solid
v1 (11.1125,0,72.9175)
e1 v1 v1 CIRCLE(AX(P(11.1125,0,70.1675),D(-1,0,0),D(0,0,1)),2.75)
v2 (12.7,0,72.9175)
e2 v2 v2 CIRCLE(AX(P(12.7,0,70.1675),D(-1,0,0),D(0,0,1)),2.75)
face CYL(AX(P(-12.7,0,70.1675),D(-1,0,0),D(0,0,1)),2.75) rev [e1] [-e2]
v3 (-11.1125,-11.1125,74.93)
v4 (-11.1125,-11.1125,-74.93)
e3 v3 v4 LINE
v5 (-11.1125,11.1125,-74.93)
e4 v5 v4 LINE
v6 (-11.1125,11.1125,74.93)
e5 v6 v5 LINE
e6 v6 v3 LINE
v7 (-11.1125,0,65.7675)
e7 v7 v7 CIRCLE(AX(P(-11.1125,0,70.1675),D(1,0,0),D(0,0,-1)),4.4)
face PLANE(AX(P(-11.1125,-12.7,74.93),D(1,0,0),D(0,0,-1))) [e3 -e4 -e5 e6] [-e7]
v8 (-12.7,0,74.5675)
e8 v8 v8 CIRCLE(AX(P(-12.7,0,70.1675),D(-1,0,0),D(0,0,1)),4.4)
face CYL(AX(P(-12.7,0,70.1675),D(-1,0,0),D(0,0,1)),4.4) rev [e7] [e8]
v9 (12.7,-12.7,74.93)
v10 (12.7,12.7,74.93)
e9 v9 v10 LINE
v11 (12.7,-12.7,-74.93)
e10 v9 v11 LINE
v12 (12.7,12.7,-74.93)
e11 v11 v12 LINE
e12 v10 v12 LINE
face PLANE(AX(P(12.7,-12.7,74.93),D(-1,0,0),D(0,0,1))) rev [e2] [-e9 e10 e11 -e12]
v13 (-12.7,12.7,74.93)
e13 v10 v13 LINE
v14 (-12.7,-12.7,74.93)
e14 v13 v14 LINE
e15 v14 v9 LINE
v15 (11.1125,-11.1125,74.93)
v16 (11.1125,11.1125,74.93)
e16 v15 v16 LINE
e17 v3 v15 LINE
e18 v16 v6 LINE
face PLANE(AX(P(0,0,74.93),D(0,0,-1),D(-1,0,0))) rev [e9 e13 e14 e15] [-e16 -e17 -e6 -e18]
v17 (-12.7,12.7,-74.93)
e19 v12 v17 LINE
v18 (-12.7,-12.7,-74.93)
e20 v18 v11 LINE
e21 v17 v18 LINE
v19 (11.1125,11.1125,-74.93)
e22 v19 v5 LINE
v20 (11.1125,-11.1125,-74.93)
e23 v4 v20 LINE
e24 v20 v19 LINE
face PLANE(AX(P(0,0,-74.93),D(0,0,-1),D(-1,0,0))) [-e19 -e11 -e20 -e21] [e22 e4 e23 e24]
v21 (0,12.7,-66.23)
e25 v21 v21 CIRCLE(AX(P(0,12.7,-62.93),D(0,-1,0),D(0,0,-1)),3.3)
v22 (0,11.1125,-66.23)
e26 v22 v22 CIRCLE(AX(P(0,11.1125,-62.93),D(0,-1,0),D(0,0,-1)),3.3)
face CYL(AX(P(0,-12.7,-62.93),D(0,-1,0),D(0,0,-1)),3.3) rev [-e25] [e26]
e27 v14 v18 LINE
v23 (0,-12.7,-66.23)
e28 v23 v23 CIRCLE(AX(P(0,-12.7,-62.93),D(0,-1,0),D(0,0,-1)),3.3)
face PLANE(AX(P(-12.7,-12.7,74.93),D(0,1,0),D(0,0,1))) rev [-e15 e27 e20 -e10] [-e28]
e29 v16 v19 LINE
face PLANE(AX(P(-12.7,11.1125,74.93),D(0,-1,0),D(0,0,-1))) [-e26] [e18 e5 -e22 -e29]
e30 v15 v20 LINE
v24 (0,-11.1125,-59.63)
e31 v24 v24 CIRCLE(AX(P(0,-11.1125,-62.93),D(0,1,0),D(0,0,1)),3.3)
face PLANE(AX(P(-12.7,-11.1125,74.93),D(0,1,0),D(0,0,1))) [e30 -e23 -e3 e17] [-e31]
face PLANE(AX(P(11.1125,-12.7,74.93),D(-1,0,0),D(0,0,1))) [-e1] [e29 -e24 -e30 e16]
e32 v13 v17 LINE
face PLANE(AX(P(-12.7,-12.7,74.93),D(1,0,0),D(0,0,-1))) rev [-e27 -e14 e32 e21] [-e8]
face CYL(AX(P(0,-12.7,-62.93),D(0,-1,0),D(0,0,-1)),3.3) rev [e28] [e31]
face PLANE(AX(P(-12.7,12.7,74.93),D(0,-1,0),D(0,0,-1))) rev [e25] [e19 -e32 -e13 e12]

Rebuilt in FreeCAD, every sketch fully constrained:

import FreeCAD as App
import Part
import Sketcher

V = App.Vector
Q = App.Units.Quantity


def faces_at(feature, points):
    """Names of the faces that lie closest to the given points."""
    faces = feature.Shape.Faces
    near = lambda p: min(range(len(faces)), key=lambda i: faces[i].distToShape(Part.Vertex(*p))[0])
    return sorted({f"Face{near(p) + 1}" for p in points})


def add_polygon(sketch, points):
    """Adds a closed chain of lines whose ends are joined by coincident constraints."""
    first, n = sketch.GeometryCount, len(points)
    for a, b in zip(points, points[1:] + points[:1]):
        sketch.addGeometry(Part.LineSegment(App.Vector(*a, 0), App.Vector(*b, 0)), False)
    for i in range(n):
        sketch.addConstraint(Sketcher.Constraint("Coincident", first + i, 2, first + (i + 1) % n, 1))

doc = App.newDocument("Part")
body = doc.addObject("PartDesign::Body", "Body")

# Sketch on XY plane
sketch1 = doc.addObject("Sketcher::SketchObject", "Sketch")
body.addObject(sketch1)
sketch1.AttachmentSupport = (doc.XY_Plane, [""])
sketch1.MapMode = "FlatFace"
add_polygon(sketch1, [(-13, 13), (-13, -13), (13, -13), (13, 13)])  # lines 0-3
sketch1.addConstraint([
    Sketcher.Constraint("Vertical", 0),
    Sketcher.Constraint("Horizontal", 1),
    Sketcher.Constraint("Vertical", 2),
    Sketcher.Constraint("Horizontal", 3),
    Sketcher.Constraint("Symmetric", 0, 2, 2, 2, -1, 1),
    Sketcher.Constraint("Equal", 3, 0),
    Sketcher.Constraint("DistanceX", 1, 1, 1, 2, Q("1 in")),
])
pad1 = doc.addObject("PartDesign::Pad", "Pad")
body.addObject(pad1)
pad1.Profile = sketch1
pad1.Length = Q("5.9 in")
pad1.Midplane = True
doc.recompute()

thickness = doc.addObject("PartDesign::Thickness", "Thickness")
body.addObject(thickness)
thickness.Base = (pad1, faces_at(pad1, [(0, 0, 74.93), (0, 0, -74.93)]))
thickness.Value = Q("0.0625 in")
thickness.Reversed = True
thickness.Join = "Intersection"

# Sketch on YZ plane
sketch2 = doc.addObject("Sketcher::SketchObject", "Sketch001")
body.addObject(sketch2)
sketch2.AttachmentSupport = (doc.YZ_Plane, [""])
sketch2.MapMode = "FlatFace"
sketch2.AttachmentOffset = App.Placement(V(0, 0, -0.5 * 25.4), App.Rotation())
sketch2.addGeometry(Part.Circle(V(0, 70.2, 0), V(0, 0, 1), 2.8), False)
sketch2.addConstraint([
    Sketcher.Constraint("PointOnObject", 0, 3, -2),
    Sketcher.Constraint("Diameter", 0, Q("5.5 mm")),
    Sketcher.Constraint("DistanceY", -1, 1, 0, 3, Q("2.7625 in")),
])
doc.recompute()
hole = doc.addObject("PartDesign::Hole", "Hole")
body.addObject(hole)
hole.Profile = sketch2
hole.ThreadType = "None"
hole.Diameter = 5.5
hole.DepthType = "ThroughAll"
hole.HoleCutType = "Counterbore"
hole.HoleCutDiameter = 8.8
hole.HoleCutDepth = 5
hole.Reversed = True

# Sketch on XZ plane
sketch3 = doc.addObject("Sketcher::SketchObject", "Sketch002")
body.addObject(sketch3)
sketch3.AttachmentSupport = (doc.XZ_Plane, [""])
sketch3.MapMode = "FlatFace"
sketch3.AttachmentOffset = App.Placement(V(0, 0, 0.5 * 25.4), App.Rotation())
sketch3.addGeometry(Part.Circle(V(0, -62.9, 0), V(0, 0, 1), 3.3), False)
sketch3.addConstraint([
    Sketcher.Constraint("PointOnObject", 0, 3, -2),
    Sketcher.Constraint("Diameter", 0, Q("6.6 mm")),
    Sketcher.Constraint("DistanceY", 0, 3, -1, 1, Q("62.93 mm")),
])
doc.recompute()
hole2 = doc.addObject("PartDesign::Hole", "Hole001")
body.addObject(hole2)
hole2.Profile = sketch3
hole2.ThreadType = "None"
hole2.Diameter = 6.6
hole2.DepthType = "ThroughAll"

doc.recompute()
